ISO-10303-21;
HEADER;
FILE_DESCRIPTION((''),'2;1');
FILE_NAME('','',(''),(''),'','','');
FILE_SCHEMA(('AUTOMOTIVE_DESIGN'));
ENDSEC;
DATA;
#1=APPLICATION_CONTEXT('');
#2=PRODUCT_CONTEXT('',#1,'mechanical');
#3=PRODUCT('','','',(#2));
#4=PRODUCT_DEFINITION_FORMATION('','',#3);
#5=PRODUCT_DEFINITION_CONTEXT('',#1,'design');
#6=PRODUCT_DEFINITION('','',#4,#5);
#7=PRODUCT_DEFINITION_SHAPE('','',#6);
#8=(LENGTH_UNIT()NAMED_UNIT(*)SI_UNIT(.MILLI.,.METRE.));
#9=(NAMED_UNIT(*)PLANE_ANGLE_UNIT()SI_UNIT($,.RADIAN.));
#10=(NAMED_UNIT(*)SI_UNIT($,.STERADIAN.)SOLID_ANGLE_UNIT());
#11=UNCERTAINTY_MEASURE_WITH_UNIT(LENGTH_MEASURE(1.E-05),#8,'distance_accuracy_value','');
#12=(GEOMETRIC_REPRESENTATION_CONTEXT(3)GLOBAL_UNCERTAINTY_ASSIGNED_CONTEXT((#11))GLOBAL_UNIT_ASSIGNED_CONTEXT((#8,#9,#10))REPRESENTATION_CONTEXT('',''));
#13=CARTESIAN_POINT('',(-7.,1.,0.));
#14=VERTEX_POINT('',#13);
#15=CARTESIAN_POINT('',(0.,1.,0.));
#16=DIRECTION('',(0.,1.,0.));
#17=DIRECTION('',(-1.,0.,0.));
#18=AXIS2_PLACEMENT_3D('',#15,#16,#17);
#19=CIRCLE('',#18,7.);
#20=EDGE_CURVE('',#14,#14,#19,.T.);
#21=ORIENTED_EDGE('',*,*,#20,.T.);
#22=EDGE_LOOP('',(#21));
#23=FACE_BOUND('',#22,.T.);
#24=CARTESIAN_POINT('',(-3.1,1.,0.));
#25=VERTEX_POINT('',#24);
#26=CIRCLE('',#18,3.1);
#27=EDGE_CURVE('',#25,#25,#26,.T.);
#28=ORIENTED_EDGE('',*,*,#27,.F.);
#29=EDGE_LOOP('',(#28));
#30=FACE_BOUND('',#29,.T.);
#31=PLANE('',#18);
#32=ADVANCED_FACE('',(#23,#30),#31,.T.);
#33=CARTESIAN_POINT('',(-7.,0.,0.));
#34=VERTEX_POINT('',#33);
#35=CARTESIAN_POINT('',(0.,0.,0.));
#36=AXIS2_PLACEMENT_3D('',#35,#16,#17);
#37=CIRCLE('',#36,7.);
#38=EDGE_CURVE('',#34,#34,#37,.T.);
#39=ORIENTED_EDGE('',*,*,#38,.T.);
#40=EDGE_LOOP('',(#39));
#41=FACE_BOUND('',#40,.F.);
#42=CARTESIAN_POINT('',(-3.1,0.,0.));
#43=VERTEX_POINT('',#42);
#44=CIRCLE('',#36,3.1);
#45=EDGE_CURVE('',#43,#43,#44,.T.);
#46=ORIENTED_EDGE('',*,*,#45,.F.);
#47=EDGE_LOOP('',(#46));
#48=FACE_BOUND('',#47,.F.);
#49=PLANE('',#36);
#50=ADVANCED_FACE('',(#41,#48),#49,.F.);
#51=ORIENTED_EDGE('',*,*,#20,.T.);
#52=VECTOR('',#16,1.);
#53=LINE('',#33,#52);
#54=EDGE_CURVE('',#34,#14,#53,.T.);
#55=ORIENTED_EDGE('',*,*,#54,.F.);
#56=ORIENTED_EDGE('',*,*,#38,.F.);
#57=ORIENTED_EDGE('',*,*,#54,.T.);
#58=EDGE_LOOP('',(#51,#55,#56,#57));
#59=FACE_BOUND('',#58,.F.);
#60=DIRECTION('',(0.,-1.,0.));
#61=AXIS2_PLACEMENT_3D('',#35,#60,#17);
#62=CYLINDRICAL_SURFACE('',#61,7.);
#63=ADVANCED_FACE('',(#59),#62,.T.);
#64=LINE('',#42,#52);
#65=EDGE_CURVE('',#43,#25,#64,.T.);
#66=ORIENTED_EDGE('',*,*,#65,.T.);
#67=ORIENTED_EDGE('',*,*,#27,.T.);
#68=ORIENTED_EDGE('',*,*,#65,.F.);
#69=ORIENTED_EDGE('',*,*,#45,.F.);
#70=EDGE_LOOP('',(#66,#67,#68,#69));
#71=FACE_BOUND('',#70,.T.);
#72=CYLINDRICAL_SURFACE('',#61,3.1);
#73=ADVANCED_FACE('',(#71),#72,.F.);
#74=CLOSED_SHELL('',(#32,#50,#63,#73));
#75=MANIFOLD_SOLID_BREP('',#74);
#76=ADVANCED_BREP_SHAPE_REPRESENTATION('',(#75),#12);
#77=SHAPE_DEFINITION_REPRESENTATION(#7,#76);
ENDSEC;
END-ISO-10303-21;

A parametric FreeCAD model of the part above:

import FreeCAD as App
import Part
import Sketcher

doc = App.newDocument("Part")
body = doc.addObject("PartDesign::Body", "Body")

sketch1 = body.newObject("Sketcher::SketchObject", "Sketch")
sketch1.AttachmentSupport = (doc.getObject("XZ_Plane"), [""])
sketch1.MapMode = "FlatFace"
sketch1.addGeometry([
    Part.Circle(App.Vector(0, 0, 0), App.Vector(0, 0, 1), 7),
    Part.Circle(App.Vector(0, 0, 0), App.Vector(0, 0, 1), 3.1),
], False)
sketch1.addConstraint([
    Sketcher.Constraint("Coincident", 0, 3, -1, 1),
    Sketcher.Constraint("Coincident", 1, 3, -1, 1),
    Sketcher.Constraint("Diameter", 0, 14.0),
    Sketcher.Constraint("Diameter", 1, 6.2),
])
pad1 = body.newObject("PartDesign::Pad", "Pad")
pad1.Profile = sketch1
pad1.Length = 1
pad1.Reversed = True

doc.recompute()
